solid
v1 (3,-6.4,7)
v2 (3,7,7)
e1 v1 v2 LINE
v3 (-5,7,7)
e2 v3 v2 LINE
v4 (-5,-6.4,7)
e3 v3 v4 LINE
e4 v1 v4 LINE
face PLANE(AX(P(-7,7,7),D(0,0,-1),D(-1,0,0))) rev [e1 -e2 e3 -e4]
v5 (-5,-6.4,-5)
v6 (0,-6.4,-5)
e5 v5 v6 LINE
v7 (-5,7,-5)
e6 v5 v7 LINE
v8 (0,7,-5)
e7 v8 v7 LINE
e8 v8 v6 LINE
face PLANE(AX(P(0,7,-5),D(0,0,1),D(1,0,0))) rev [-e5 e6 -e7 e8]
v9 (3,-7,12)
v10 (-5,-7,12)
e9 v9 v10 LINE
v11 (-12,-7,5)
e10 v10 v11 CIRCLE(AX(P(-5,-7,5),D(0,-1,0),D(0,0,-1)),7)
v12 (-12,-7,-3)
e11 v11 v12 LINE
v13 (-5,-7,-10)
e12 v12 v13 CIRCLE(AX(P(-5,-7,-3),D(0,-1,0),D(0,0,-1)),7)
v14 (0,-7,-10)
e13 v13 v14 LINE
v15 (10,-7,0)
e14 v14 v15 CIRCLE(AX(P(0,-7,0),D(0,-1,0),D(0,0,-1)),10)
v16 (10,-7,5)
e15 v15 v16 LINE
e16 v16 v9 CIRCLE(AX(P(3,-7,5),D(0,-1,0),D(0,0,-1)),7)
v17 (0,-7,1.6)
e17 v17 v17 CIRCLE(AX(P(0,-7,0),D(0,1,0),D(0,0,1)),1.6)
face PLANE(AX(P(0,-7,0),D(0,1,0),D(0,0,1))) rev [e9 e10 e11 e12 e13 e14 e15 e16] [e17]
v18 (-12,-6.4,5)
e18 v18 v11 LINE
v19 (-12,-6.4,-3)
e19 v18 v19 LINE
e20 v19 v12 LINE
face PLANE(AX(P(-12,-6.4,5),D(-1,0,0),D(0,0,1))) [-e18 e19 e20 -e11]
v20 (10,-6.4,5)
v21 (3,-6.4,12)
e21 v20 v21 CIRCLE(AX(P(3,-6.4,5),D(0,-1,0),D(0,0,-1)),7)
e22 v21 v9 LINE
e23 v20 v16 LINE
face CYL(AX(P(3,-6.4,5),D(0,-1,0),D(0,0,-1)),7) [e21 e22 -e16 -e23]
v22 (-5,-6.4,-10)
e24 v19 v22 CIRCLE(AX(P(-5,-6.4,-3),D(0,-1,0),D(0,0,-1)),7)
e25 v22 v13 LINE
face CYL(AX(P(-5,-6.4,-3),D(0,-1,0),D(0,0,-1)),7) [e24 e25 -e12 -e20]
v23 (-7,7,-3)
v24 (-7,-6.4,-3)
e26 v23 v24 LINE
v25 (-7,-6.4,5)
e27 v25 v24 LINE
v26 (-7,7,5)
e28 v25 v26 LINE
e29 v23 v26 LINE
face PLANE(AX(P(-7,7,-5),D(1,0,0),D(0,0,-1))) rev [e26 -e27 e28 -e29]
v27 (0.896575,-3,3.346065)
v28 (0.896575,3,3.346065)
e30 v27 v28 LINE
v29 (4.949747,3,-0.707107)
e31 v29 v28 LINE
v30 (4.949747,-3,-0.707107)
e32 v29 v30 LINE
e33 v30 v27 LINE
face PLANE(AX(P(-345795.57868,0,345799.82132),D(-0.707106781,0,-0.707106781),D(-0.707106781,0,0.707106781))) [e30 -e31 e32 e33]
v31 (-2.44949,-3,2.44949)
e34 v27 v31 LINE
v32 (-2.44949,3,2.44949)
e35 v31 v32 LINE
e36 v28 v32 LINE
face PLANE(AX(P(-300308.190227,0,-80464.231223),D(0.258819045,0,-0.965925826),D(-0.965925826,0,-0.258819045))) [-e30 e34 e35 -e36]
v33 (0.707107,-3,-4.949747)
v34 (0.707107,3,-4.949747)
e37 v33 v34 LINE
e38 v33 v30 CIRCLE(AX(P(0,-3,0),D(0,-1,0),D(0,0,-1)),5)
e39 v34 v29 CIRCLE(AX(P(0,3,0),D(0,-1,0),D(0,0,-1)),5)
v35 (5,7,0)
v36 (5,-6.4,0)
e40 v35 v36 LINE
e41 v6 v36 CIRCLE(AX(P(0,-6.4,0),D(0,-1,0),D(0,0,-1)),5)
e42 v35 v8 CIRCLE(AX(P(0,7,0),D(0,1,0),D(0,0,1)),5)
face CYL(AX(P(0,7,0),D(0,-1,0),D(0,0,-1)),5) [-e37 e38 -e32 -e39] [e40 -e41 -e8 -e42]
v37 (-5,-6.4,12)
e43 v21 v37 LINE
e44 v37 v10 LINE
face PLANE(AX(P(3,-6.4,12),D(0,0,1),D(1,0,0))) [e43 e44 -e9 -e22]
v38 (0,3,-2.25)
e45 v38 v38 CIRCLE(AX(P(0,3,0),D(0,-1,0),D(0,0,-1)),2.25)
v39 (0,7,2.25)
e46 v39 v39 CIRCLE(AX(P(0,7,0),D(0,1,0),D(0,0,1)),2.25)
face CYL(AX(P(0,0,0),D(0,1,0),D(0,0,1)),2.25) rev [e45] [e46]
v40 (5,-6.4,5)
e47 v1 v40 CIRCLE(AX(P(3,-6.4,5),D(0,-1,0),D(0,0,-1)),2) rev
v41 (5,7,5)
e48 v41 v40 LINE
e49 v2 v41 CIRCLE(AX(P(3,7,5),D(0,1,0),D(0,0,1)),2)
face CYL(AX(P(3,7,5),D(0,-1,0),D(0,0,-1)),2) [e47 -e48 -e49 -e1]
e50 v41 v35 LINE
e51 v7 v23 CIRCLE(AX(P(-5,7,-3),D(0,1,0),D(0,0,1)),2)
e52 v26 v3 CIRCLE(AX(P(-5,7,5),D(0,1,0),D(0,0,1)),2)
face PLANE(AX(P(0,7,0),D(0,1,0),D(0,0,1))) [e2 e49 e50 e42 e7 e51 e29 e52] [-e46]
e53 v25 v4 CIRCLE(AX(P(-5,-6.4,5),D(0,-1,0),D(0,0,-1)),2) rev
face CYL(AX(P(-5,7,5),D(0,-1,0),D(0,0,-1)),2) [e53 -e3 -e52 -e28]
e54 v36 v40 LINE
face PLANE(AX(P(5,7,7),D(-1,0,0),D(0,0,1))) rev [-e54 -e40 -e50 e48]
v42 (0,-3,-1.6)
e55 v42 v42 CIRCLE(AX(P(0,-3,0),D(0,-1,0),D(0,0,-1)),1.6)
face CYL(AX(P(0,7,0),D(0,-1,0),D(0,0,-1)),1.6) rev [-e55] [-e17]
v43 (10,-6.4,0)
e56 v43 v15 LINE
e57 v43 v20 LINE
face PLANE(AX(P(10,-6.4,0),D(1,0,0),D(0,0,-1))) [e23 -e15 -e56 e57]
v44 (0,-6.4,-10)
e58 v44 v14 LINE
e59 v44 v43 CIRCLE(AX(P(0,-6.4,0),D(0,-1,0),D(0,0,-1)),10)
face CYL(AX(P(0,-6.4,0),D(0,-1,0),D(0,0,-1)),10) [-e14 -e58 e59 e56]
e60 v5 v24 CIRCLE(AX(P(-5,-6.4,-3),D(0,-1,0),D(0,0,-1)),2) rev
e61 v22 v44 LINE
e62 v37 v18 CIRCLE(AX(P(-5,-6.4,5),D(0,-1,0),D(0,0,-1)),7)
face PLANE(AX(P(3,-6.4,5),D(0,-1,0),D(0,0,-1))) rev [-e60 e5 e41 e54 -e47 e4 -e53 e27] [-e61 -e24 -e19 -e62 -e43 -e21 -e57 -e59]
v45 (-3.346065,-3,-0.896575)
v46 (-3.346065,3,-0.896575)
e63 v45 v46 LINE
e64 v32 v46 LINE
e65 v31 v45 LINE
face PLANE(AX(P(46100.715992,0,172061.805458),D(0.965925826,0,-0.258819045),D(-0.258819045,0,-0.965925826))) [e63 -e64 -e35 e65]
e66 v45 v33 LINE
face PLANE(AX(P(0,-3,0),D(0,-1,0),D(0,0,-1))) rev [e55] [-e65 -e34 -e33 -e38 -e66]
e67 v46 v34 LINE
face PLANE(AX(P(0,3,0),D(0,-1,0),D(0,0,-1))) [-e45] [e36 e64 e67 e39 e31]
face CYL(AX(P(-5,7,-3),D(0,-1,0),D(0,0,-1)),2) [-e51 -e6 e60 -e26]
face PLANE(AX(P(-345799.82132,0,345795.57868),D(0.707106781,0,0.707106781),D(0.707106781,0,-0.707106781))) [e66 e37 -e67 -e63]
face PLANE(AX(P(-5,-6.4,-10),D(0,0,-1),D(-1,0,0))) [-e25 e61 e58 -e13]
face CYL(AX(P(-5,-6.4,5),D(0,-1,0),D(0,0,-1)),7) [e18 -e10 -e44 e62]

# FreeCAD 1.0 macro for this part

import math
import FreeCAD as App
import Part
import Sketcher
from FreeCAD import Vector
Q = App.Units.Quantity


def edges_at(feature, points):
    """Names of the edges that pass closest to the given points."""
    edges = feature.Shape.Edges
    near = lambda p: min(range(len(edges)), key=lambda i: edges[i].distToShape(Part.Vertex(*p))[0])
    return sorted({f"Edge{near(p) + 1}" for p in points})

doc = App.newDocument("Part")
body = doc.addObject("PartDesign::Body", "Body")

# Sketch on XZ plane
sketch1 = body.newObject("Sketcher::SketchObject", "Sketch")
sketch1.AttachmentSupport = (doc.getObject("XZ_Plane"), [""])
sketch1.MapMode = "FlatFace"
sketch1.addGeometry(Part.LineSegment(Vector(0, -5, 0), Vector(-7, -5, 0)), False)
sketch1.addGeometry(Part.LineSegment(Vector(-7, -5, 0), Vector(-7, 7, 0)), False)
sketch1.addGeometry(Part.LineSegment(Vector(-7, 7, 0), Vector(5, 7, 0)), False)
sketch1.addGeometry(Part.LineSegment(Vector(5, 7, 0), Vector(5, 0, 0)), False)
sketch1.addGeometry(Part.ArcOfCircle(Part.Circle(Vector(0, 0, 0), Vector(0, 0, 1), 5), math.radians(-90), math.radians(0)), False)
sketch1.addGeometry(Part.Circle(Vector(0, 0, 0), Vector(0, 0, 1), 1.6), False)
sketch1.addConstraint(Sketcher.Constraint("Coincident", 0, 2, 1, 1))
sketch1.addConstraint(Sketcher.Constraint("Coincident", 1, 2, 2, 1))
sketch1.addConstraint(Sketcher.Constraint("Coincident", 2, 2, 3, 1))
sketch1.addConstraint(Sketcher.Constraint("Tangent", 3, 2, 4, 2))
sketch1.addConstraint(Sketcher.Constraint("Tangent", 4, 1, 0, 1))
sketch1.addConstraint(Sketcher.Constraint("Horizontal", 0))
sketch1.addConstraint(Sketcher.Constraint("Vertical", 1))
sketch1.addConstraint(Sketcher.Constraint("Horizontal", 2))
sketch1.addConstraint(Sketcher.Constraint("Vertical", 3))
sketch1.addConstraint(Sketcher.Constraint("Coincident", 4, 3, -1, 1))
sketch1.addConstraint(Sketcher.Constraint("Coincident", 5, 3, -1, 1))
sketch1.addConstraint(Sketcher.Constraint("Equal", 2, 1))
sketch1.addConstraint(Sketcher.Constraint("Radius", 4, Q("5 mm")))
sketch1.addConstraint(Sketcher.Constraint("Diameter", 5, Q("3.2 mm")))
sketch1.addConstraint(Sketcher.Constraint("DistanceX", 0, 2, 0, 1, Q("7 mm")))
pad1 = body.newObject("PartDesign::Pad", "Pad")
pad1.Profile = sketch1
pad1.Length = 14
pad1.Midplane = True
doc.recompute()

fillet = body.newObject("PartDesign::Fillet", "Fillet")
fillet.Base = (pad1, edges_at(pad1, [(5, 0, 7), (-7, 0, 7), (-7, 0, -5)]))
fillet.Radius = 2

# Sketch on XZ plane
sketch2 = body.newObject("Sketcher::SketchObject", "Sketch001")
sketch2.AttachmentSupport = (doc.getObject("XZ_Plane"), [""])
sketch2.MapMode = "FlatFace"
sketch2.AttachmentOffset = App.Placement(Vector(0, 0, -3), App.Rotation())
sketch2.addGeometry(Part.LineSegment(Vector(0.8, -5, 0), Vector(-3.3, -0.9, 0)), False)
sketch2.addGeometry(Part.LineSegment(Vector(-3.3, -0.9, 0), Vector(-2.4, 2.4, 0)), False)
sketch2.addGeometry(Part.LineSegment(Vector(-2.4, 2.4, 0), Vector(0.9, 3.3, 0)), False)
sketch2.addGeometry(Part.LineSegment(Vector(0.9, 3.3, 0), Vector(5, -0.8, 0)), False)
sketch2.addGeometry(Part.LineSegment(Vector(5, -0.8, 0), Vector(5, -5, 0)), False)
sketch2.addGeometry(Part.LineSegment(Vector(5, -5, 0), Vector(0.8, -5, 0)), False)
sketch2.addConstraint(Sketcher.Constraint("Coincident", 0, 2, 1, 1))
sketch2.addConstraint(Sketcher.Constraint("Coincident", 1, 2, 2, 1))
sketch2.addConstraint(Sketcher.Constraint("Coincident", 2, 2, 3, 1))
sketch2.addConstraint(Sketcher.Constraint("Coincident", 3, 2, 4, 1))
sketch2.addConstraint(Sketcher.Constraint("Coincident", 4, 2, 5, 1))
sketch2.addConstraint(Sketcher.Constraint("Coincident", 5, 2, 0, 1))
sketch2.addConstraint(Sketcher.Constraint("Vertical", 4))
sketch2.addConstraint(Sketcher.Constraint("Horizontal", 5))
sketch2.addConstraint(Sketcher.Constraint("Parallel", 0, 3))
sketch2.addConstraint(Sketcher.Constraint("Equal", 5, 4))
sketch2.addConstraint(Sketcher.Constraint("Equal", 1, 2))
sketch2.addConstraint(Sketcher.Constraint("Equal", 0, 3))
sketch2.addConstraint(Sketcher.Constraint("Angle", 0, Q("135 deg")))
sketch2.addConstraint(Sketcher.Constraint("Angle", 1, Q("75 deg")))
sketch2.addConstraint(Sketcher.Constraint("DistanceX", -1, 1, 3, 2, Q("5 mm")))
sketch2.addConstraint(Sketcher.Constraint("DistanceY", 4, 2, -1, 1, Q("5 mm")))
sketch2.addConstraint(Sketcher.Constraint("Distance", 1, Q("3.464102 mm")))
sketch2.addConstraint(Sketcher.Constraint("Distance", 0, Q("5.803119 mm")))
pocket1 = body.newObject("PartDesign::Pocket", "Pocket")
pocket1.Profile = sketch2
pocket1.Length = 3
pocket1.Reversed = True

# Sketch on XZ plane
sketch3 = body.newObject("Sketcher::SketchObject", "Sketch002")
sketch3.AttachmentSupport = (doc.getObject("XZ_Plane"), [""])
sketch3.MapMode = "FlatFace"
sketch3.AttachmentOffset = App.Placement(Vector(0, 0, 3), App.Rotation())
sketch3.addGeometry(Part.LineSegment(Vector(0.8, -5, 0), Vector(-3.3, -0.9, 0)), False)
sketch3.addGeometry(Part.LineSegment(Vector(-3.3, -0.9, 0), Vector(-2.4, 2.4, 0)), False)
sketch3.addGeometry(Part.LineSegment(Vector(-2.4, 2.4, 0), Vector(0.9, 3.3, 0)), False)
sketch3.addGeometry(Part.LineSegment(Vector(0.9, 3.3, 0), Vector(5, -0.8, 0)), False)
sketch3.addGeometry(Part.LineSegment(Vector(5, -0.8, 0), Vector(5, -5, 0)), False)
sketch3.addGeometry(Part.LineSegment(Vector(5, -5, 0), Vector(0.8, -5, 0)), False)
sketch3.addConstraint(Sketcher.Constraint("Coincident", 0, 2, 1, 1))
sketch3.addConstraint(Sketcher.Constraint("Coincident", 1, 2, 2, 1))
sketch3.addConstraint(Sketcher.Constraint("Coincident", 2, 2, 3, 1))
sketch3.addConstraint(Sketcher.Constraint("Coincident", 3, 2, 4, 1))
sketch3.addConstraint(Sketcher.Constraint("Coincident", 4, 2, 5, 1))
sketch3.addConstraint(Sketcher.Constraint("Coincident", 5, 2, 0, 1))
sketch3.addConstraint(Sketcher.Constraint("Vertical", 4))
sketch3.addConstraint(Sketcher.Constraint("Horizontal", 5))
sketch3.addConstraint(Sketcher.Constraint("Parallel", 0, 3))
sketch3.addConstraint(Sketcher.Constraint("Equal", 5, 4))
sketch3.addConstraint(Sketcher.Constraint("Equal", 1, 2))
sketch3.addConstraint(Sketcher.Constraint("Equal", 0, 3))
sketch3.addConstraint(Sketcher.Constraint("Angle", 0, Q("135 deg")))
sketch3.addConstraint(Sketcher.Constraint("Angle", 1, Q("75 deg")))
sketch3.addConstraint(Sketcher.Constraint("DistanceX", -1, 1, 3, 2, Q("5 mm")))
sketch3.addConstraint(Sketcher.Constraint("DistanceY", 4, 2, -1, 1, Q("5 mm")))
sketch3.addConstraint(Sketcher.Constraint("Distance", 1, Q("3.464102 mm")))
sketch3.addConstraint(Sketcher.Constraint("Distance", 0, Q("5.803119 mm")))
pocket2 = body.newObject("PartDesign::Pocket", "Pocket001")
pocket2.Profile = sketch3
pocket2.Length = 3

# Sketch on XZ plane
sketch4 = body.newObject("Sketcher::SketchObject", "Sketch003")
sketch4.AttachmentSupport = (doc.getObject("XZ_Plane"), [""])
sketch4.MapMode = "FlatFace"
sketch4.AttachmentOffset = App.Placement(Vector(0, 0, -7), App.Rotation())
sketch4.addGeometry(Part.Circle(Vector(0, 0, 0), Vector(0, 0, 1), 2.2), False)
sketch4.addConstraint(Sketcher.Constraint("Coincident", 0, 3, -1, 1))
sketch4.addConstraint(Sketcher.Constraint("Diameter", 0, Q("4.5 mm")))
pocket3 = body.newObject("PartDesign::Pocket", "Pocket002")
pocket3.Profile = sketch4
pocket3.Length = 7
pocket3.Reversed = True

# Sketch on XZ plane
sketch5 = body.newObject("Sketcher::SketchObject", "Sketch004")
sketch5.AttachmentSupport = (doc.getObject("XZ_Plane"), [""])
sketch5.MapMode = "FlatFace"
sketch5.AttachmentOffset = App.Placement(Vector(0, 0, 7), App.Rotation())
sketch5.addGeometry(Part.LineSegment(Vector(10, 0, 0), Vector(10, 5, 0)), False)
sketch5.addGeometry(Part.ArcOfCircle(Part.Circle(Vector(3, 5, 0), Vector(0, 0, 1), 7), math.radians(0), math.radians(90)), False)
sketch5.addGeometry(Part.LineSegment(Vector(3, 12, 0), Vector(-5, 12, 0)), False)
sketch5.addGeometry(Part.ArcOfCircle(Part.Circle(Vector(-5, 5, 0), Vector(0, 0, 1), 7), math.radians(90), math.radians(180)), False)
sketch5.addGeometry(Part.LineSegment(Vector(-12, 5, 0), Vector(-12, -3, 0)), False)
sketch5.addGeometry(Part.ArcOfCircle(Part.Circle(Vector(-5, -3, 0), Vector(0, 0, 1), 7), math.radians(-180), math.radians(-90)), False)
sketch5.addGeometry(Part.LineSegment(Vector(-5, -10, 0), Vector(0, -10, 0)), False)
sketch5.addGeometry(Part.ArcOfCircle(Part.Circle(Vector(0, 0, 0), Vector(0, 0, 1), 10), math.radians(-90), math.radians(0)), False)
sketch5.addGeometry(Part.Circle(Vector(0, 0, 0), Vector(0, 0, 1), 1.6), False)
sketch5.addConstraint(Sketcher.Constraint("Tangent", 0, 2, 1, 1))
sketch5.addConstraint(Sketcher.Constraint("Tangent", 1, 2, 2, 1))
sketch5.addConstraint(Sketcher.Constraint("Tangent", 2, 2, 3, 1))
sketch5.addConstraint(Sketcher.Constraint("Tangent", 3, 2, 4, 1))
sketch5.addConstraint(Sketcher.Constraint("Tangent", 4, 2, 5, 1))
sketch5.addConstraint(Sketcher.Constraint("Tangent", 5, 2, 6, 1))
sketch5.addConstraint(Sketcher.Constraint("Tangent", 6, 2, 7, 1))
sketch5.addConstraint(Sketcher.Constraint("Tangent", 7, 2, 0, 1))
sketch5.addConstraint(Sketcher.Constraint("Vertical", 0))
sketch5.addConstraint(Sketcher.Constraint("Horizontal", 2))
sketch5.addConstraint(Sketcher.Constraint("Vertical", 4))
sketch5.addConstraint(Sketcher.Constraint("Horizontal", 6))
sketch5.addConstraint(Sketcher.Constraint("Coincident", 7, 3, -1, 1))
sketch5.addConstraint(Sketcher.Constraint("Coincident", 8, 3, -1, 1))
sketch5.addConstraint(Sketcher.Constraint("Equal", 1, 3))
sketch5.addConstraint(Sketcher.Constraint("Equal", 3, 5))
sketch5.addConstraint(Sketcher.Constraint("Equal", 6, 0))
sketch5.addConstraint(Sketcher.Constraint("Radius", 1, Q("7 mm")))
sketch5.addConstraint(Sketcher.Constraint("Radius", 7, Q("10 mm")))
sketch5.addConstraint(Sketcher.Constraint("Diameter", 8, Q("3.2 mm")))
sketch5.addConstraint(Sketcher.Constraint("DistanceX", 2, 2, 2, 1, Q("8 mm")))
pad2 = body.newObject("PartDesign::Pad", "Pad001")
pad2.Profile = sketch5
pad2.Length = 0.6
pad2.Reversed = True

doc.recompute()
